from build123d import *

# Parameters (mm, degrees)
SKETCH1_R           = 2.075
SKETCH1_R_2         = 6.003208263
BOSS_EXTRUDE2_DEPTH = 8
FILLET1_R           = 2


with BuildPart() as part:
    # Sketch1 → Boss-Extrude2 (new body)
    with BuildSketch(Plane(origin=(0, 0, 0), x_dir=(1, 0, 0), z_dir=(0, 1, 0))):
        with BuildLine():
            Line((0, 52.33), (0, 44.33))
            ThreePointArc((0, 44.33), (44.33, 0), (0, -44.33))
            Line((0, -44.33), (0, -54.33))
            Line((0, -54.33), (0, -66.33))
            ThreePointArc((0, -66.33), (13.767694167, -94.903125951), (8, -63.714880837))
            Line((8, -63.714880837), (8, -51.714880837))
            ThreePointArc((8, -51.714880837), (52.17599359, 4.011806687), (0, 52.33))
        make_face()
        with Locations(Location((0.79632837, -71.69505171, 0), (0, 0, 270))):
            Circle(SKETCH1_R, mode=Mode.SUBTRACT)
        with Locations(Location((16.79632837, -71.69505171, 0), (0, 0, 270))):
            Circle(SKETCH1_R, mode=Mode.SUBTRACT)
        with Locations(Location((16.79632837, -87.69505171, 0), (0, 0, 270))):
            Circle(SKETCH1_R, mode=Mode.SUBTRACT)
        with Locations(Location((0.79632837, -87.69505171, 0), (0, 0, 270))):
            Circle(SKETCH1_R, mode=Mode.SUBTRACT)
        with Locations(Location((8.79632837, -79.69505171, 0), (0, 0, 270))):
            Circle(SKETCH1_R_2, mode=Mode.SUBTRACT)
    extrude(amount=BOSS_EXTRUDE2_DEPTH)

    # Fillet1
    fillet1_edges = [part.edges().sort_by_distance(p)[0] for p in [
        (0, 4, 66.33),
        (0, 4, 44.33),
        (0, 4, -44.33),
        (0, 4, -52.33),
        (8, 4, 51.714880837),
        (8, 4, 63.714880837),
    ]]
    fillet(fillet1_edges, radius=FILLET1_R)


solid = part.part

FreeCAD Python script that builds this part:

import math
import FreeCAD as App
import Part
import Sketcher


def edges_at(feature, points):
    """Names of the edges that pass closest to the given points."""
    edges = feature.Shape.Edges
    near = lambda p: min(range(len(edges)), key=lambda i: edges[i].distToShape(Part.Vertex(*p))[0])
    return sorted({f"Edge{near(p) + 1}" for p in points})

doc = App.newDocument("Part")
params = doc.addObject("Spreadsheet::Sheet", "Params")
for row, (alias, value) in enumerate([
    ("sketch1_radius", "16 mm"),
    ("sketch1_diameter", "4.15 mm"),
    ("sketch1_height", "8 mm"),
    ("sketch1_height2", "22 mm"),
    ("sketch1_height3", "12 mm"),
    ("pad1_length", "8 mm"),
    ("fillet_radius", "2 mm"),
], start=1):
    params.set(f"A{row}", alias)
    params.set(f"B{row}", "=" + value)
    params.setAlias(f"B{row}", alias)

body = doc.addObject("PartDesign::Body", "Body")

# Sketch on XZ plane
sketch1 = body.newObject("Sketcher::SketchObject", "Sketch")
sketch1.AttachmentSupport = (doc.getObject("XZ_Plane"), [""])
sketch1.MapMode = "FlatFace"
sketch1.addGeometry([
    Part.LineSegment(App.Vector(0, -52.3, 0), App.Vector(0, -44.3, 0)),  # 0
    Part.ArcOfCircle(Part.Circle(App.Vector(0, 0, 0), App.Vector(0, 0, 1), 44.3), math.radians(-90), math.radians(90)),  # 1
    Part.LineSegment(App.Vector(0, 44.3, 0), App.Vector(0, 66.3, 0)),  # 2
    Part.ArcOfCircle(Part.Circle(App.Vector(8.8, 79.7, 0), App.Vector(0, 0, 1), 16), math.radians(-93), math.radians(237)),  # 3
    Part.LineSegment(App.Vector(8, 63.7, 0), App.Vector(8, 51.7, 0)),  # 4
    Part.ArcOfCircle(Part.Circle(App.Vector(0, 0, 0), App.Vector(0, 0, 1), 52.3), math.radians(-90), math.radians(81)),  # 5
    Part.Circle(App.Vector(0.8, 87.7, 0), App.Vector(0, 0, 1), 2.1),  # 6
    Part.Circle(App.Vector(8.8, 79.7, 0), App.Vector(0, 0, 1), 6),  # 7
    Part.Circle(App.Vector(16.8, 87.7, 0), App.Vector(0, 0, 1), 2.1),  # 8
    Part.Circle(App.Vector(0.8, 71.7, 0), App.Vector(0, 0, 1), 2.1),  # 9
    Part.Circle(App.Vector(16.8, 71.7, 0), App.Vector(0, 0, 1), 2.1),  # 10
], False)
sketch1.addConstraint([
    Sketcher.Constraint("Coincident", 0, 2, 1, 1),
    Sketcher.Constraint("Coincident", 1, 2, 2, 1),
    Sketcher.Constraint("Coincident", 2, 2, 3, 2),
    Sketcher.Constraint("Coincident", 3, 1, 4, 1),
    Sketcher.Constraint("Coincident", 4, 2, 5, 2),
    Sketcher.Constraint("Coincident", 5, 1, 0, 1),
    Sketcher.Constraint("Vertical", 0),
    Sketcher.Constraint("Vertical", 2),
    Sketcher.Constraint("Vertical", 4),
    Sketcher.Constraint("Coincident", 1, 3, -1, 1),
    Sketcher.Constraint("Coincident", 5, 3, -1, 1),
    Sketcher.Constraint("Coincident", 7, 3, 3, 3),
    Sketcher.Constraint("Equal", 6, 8),
    Sketcher.Constraint("Equal", 8, 9),
    Sketcher.Constraint("Equal", 9, 10),
    Sketcher.Constraint("PointOnObject", 0, 2, -2),
    Sketcher.Constraint("PointOnObject", 1, 2, -2),
    Sketcher.Constraint("Horizontal", 6, 3, 8, 3),
    Sketcher.Constraint("Horizontal", 9, 3, 10, 3),
    Sketcher.Constraint("Vertical", 6, 3, 9, 3),
    Sketcher.Constraint("Vertical", 8, 3, 10, 3),
    Sketcher.Constraint("Radius", 3, 16.0),
    Sketcher.Constraint("Diameter", 6, 4.15),
    Sketcher.Constraint("DistanceY", 0, 1, 0, 2, 8.0),
    Sketcher.Constraint("DistanceY", 2, 1, 2, 2, 22.0),
    Sketcher.Constraint("DistanceY", 4, 2, 4, 1, 12.0),
    Sketcher.Constraint("Radius", 1, 44.33),
    Sketcher.Constraint("DistanceX", -1, 1, 3, 1, 8.0),
    Sketcher.Constraint("DistanceX", 6, 3, 3, 3, 8.0),
    Sketcher.Constraint("DistanceY", 3, 3, 6, 3, 8.0),
    Sketcher.Constraint("DistanceX", 3, 3, 8, 3, 8.0),
    Sketcher.Constraint("DistanceY", 9, 3, 3, 3, 8.0),
    Sketcher.Constraint("Diameter", 7, 12.006417),
])
sketch1.setExpression("Constraints[21]", "Params.sketch1_radius")
sketch1.setExpression("Constraints[22]", "Params.sketch1_diameter")
sketch1.setExpression("Constraints[23]", "Params.sketch1_height")
sketch1.setExpression("Constraints[24]", "Params.sketch1_height2")
sketch1.setExpression("Constraints[25]", "Params.sketch1_height3")
pad1 = body.newObject("PartDesign::Pad", "Pad")
pad1.Profile = sketch1
pad1.setExpression("Length", "Params.pad1_length")
pad1.Reversed = True
doc.recompute()

fillet = body.newObject("PartDesign::Fillet", "Fillet")
fillet.Base = (pad1, edges_at(pad1, [
    (0, 4, 66.33),
    (0, 4, 44.33),
    (0, 4, -44.33),
    (0, 4, -52.33),
    (8, 4, 51.715),
    (8, 4, 63.715),
]))
fillet.setExpression("Radius", "Params.fillet_radius")

doc.recompute()
